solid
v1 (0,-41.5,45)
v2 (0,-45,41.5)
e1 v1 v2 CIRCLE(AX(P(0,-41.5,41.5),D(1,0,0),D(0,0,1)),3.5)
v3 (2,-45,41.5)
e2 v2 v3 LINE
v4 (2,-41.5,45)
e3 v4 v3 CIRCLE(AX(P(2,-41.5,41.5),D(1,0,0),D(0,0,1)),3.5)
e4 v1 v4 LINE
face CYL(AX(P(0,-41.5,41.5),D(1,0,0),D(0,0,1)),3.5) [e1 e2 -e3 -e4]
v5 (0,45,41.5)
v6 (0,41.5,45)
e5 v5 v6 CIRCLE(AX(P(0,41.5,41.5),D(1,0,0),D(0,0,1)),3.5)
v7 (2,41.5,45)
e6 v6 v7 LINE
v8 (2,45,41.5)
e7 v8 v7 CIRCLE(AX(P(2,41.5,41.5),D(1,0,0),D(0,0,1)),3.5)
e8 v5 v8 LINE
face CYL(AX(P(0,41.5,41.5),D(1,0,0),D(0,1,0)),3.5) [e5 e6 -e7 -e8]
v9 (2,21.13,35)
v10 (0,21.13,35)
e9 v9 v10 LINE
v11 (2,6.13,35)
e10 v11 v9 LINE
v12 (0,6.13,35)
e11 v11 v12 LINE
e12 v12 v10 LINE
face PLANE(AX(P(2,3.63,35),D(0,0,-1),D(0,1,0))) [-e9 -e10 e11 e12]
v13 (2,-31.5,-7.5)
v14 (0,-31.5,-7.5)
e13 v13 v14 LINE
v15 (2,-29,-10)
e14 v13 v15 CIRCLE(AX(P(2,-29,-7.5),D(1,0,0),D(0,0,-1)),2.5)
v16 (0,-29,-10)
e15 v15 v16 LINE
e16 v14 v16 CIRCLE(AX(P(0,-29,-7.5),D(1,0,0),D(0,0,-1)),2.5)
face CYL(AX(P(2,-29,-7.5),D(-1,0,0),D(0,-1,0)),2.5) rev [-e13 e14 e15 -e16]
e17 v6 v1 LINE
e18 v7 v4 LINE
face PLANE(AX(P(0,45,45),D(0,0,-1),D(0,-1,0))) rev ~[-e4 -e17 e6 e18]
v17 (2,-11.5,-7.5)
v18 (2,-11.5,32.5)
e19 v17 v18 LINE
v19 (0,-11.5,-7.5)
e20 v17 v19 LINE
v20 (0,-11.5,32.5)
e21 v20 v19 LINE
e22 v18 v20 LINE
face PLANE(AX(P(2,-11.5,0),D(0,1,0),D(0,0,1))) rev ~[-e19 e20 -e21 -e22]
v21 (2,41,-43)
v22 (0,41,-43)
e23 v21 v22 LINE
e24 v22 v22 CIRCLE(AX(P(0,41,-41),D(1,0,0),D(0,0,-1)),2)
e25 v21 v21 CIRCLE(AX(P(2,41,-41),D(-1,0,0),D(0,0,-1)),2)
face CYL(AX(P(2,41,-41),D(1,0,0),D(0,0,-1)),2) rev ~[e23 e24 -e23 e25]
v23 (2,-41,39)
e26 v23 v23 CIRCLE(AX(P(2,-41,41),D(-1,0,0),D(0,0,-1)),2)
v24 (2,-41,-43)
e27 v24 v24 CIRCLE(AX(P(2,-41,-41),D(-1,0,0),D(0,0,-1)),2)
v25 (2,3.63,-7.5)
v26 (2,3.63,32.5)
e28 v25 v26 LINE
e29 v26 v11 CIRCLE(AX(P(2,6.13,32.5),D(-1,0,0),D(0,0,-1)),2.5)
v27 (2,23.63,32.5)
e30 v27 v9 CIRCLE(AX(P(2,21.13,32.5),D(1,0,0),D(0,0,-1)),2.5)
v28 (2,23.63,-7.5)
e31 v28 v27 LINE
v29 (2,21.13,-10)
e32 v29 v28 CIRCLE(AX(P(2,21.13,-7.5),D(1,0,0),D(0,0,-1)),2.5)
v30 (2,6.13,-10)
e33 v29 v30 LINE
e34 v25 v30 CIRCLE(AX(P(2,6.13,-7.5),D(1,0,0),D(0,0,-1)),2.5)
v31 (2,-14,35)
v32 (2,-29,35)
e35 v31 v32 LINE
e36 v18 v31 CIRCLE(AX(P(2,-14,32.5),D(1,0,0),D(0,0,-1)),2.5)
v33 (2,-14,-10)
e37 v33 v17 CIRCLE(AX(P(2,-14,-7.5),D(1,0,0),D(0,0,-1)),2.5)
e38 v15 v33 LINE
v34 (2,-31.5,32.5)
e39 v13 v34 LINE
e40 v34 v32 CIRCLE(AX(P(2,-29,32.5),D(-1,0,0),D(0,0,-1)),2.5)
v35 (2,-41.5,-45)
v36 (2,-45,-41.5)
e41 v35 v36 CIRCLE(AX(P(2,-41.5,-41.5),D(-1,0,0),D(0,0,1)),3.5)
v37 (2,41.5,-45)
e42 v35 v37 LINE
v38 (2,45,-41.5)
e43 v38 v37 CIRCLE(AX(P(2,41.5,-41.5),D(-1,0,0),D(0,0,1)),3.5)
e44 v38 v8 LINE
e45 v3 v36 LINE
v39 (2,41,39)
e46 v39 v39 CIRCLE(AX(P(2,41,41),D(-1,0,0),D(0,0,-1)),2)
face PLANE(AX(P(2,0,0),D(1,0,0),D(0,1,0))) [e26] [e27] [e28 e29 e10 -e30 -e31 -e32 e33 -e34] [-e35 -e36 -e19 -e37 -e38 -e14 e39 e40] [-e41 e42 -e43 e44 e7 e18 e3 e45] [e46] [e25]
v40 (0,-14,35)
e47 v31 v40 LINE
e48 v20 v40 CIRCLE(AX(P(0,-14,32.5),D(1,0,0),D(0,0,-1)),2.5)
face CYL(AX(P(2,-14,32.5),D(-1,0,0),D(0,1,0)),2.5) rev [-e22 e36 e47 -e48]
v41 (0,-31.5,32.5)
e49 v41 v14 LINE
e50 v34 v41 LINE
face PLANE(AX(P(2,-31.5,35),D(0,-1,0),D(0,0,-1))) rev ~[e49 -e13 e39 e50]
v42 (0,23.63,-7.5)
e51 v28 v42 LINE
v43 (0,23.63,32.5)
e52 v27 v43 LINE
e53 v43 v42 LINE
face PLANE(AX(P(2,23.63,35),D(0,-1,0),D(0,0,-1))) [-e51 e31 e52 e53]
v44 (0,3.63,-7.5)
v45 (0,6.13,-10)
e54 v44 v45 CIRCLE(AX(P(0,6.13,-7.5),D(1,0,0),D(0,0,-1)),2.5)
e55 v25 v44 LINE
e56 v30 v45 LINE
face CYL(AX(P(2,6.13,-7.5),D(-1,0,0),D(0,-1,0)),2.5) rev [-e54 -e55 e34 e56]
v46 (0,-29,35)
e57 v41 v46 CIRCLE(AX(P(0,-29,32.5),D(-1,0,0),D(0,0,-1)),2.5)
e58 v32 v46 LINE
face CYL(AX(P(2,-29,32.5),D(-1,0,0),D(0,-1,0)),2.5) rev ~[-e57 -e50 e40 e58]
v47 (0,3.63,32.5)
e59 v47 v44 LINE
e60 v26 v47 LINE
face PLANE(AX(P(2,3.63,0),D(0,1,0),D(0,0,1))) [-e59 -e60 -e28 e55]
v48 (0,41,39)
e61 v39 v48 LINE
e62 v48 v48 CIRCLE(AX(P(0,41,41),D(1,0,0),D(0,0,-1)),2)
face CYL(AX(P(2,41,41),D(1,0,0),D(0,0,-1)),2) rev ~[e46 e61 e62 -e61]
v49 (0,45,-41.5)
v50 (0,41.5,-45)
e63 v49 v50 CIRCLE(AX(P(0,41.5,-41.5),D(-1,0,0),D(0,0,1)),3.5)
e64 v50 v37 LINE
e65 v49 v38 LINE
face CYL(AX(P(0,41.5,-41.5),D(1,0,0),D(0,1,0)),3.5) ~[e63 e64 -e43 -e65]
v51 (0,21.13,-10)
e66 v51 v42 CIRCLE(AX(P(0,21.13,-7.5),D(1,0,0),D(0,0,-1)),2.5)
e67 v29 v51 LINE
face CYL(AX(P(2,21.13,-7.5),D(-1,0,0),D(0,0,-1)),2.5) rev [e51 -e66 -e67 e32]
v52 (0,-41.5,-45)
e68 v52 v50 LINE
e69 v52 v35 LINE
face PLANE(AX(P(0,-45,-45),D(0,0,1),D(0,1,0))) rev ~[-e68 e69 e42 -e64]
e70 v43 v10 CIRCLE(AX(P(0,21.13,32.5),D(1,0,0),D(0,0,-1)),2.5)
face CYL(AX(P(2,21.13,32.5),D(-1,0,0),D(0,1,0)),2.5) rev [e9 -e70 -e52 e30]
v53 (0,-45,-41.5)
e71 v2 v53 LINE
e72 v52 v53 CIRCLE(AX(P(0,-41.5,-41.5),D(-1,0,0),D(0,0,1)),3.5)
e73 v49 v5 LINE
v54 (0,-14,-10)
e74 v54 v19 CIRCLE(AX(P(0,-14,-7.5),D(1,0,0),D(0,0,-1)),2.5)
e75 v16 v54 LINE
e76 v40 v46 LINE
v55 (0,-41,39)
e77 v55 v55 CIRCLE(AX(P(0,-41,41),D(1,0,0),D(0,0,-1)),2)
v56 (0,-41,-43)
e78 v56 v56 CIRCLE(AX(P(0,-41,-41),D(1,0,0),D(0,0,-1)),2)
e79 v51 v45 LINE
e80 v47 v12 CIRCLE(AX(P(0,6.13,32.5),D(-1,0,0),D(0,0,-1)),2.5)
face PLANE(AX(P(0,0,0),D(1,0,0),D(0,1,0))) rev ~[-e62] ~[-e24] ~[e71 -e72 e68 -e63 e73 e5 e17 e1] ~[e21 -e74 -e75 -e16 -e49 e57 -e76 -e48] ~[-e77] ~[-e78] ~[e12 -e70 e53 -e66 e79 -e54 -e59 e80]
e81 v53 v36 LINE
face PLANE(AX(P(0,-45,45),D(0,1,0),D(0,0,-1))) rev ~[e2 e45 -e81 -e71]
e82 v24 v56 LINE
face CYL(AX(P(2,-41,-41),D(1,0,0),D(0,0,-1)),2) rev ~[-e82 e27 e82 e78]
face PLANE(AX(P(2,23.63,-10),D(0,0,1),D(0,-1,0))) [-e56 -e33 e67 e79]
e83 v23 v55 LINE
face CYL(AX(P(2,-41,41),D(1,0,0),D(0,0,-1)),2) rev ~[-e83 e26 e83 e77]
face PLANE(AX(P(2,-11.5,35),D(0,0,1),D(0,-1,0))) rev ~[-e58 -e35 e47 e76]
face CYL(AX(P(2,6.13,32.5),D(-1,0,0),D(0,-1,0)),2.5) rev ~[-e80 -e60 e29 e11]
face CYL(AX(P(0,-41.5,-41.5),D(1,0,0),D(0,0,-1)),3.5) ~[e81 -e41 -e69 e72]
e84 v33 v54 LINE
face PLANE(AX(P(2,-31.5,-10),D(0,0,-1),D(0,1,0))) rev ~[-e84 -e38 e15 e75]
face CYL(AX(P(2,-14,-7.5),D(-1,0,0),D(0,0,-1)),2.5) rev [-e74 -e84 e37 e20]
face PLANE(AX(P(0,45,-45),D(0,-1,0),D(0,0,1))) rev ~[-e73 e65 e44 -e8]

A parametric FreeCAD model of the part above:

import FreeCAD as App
import Part
import Sketcher

V = App.Vector
Q = App.Units.Quantity


def edges_at(feature, points):
    """Names of the edges that pass closest to the given points."""
    edges = feature.Shape.Edges
    near = lambda p: min(range(len(edges)), key=lambda i: edges[i].distToShape(Part.Vertex(*p))[0])
    return sorted({f"Edge{near(p) + 1}" for p in points})


def add_polygon(sketch, points):
    """Adds a closed chain of lines whose ends are joined by coincident constraints."""
    first, n = sketch.GeometryCount, len(points)
    for a, b in zip(points, points[1:] + points[:1]):
        sketch.addGeometry(Part.LineSegment(App.Vector(*a, 0), App.Vector(*b, 0)), False)
    for i in range(n):
        sketch.addConstraint(Sketcher.Constraint("Coincident", first + i, 2, first + (i + 1) % n, 1))

doc = App.newDocument("Part")
body = doc.addObject("PartDesign::Body", "Body")

# Sketch on YZ plane
sketch1 = body.newObject("Sketcher::SketchObject", "Sketch")
sketch1.AttachmentSupport = (doc.getObject("YZ_Plane"), [""])
sketch1.MapMode = "FlatFace"
add_polygon(sketch1, [(45, -45), (45, 45), (-45, 45), (-45, -45)])  # lines 0-3
sketch1.addConstraint(Sketcher.Constraint("Vertical", 0))
sketch1.addConstraint(Sketcher.Constraint("Horizontal", 1))
sketch1.addConstraint(Sketcher.Constraint("Vertical", 2))
sketch1.addConstraint(Sketcher.Constraint("Horizontal", 3))
sketch1.addConstraint(Sketcher.Constraint("Symmetric", 0, 2, 2, 2, -1, 1))
sketch1.addConstraint(Sketcher.Constraint("Equal", 3, 0))
sketch1.addConstraint(Sketcher.Constraint("DistanceX", 1, 2, 1, 1, Q("90 mm")))
pad1 = body.newObject("PartDesign::Pad", "Pad")
pad1.Profile = sketch1
pad1.Length = 2

# Sketch on YZ plane
sketch2 = body.newObject("Sketcher::SketchObject", "Sketch001")
sketch2.AttachmentSupport = (doc.getObject("YZ_Plane"), [""])
sketch2.MapMode = "FlatFace"
sketch2.AttachmentOffset = App.Placement(V(0, 0, 2), App.Rotation())
sketch2.addGeometry(Part.Circle(V(41, -41, 0), V(0, 0, 1), 2), False)
sketch2.addGeometry(Part.Circle(V(41, 41, 0), V(0, 0, 1), 2), False)
sketch2.addGeometry(Part.Circle(V(-41, 41, 0), V(0, 0, 1), 2), False)
sketch2.addGeometry(Part.Circle(V(-41, -41, 0), V(0, 0, 1), 2), False)
sketch2.addConstraint(Sketcher.Constraint("Equal", 0, 1))
sketch2.addConstraint(Sketcher.Constraint("Equal", 1, 2))
sketch2.addConstraint(Sketcher.Constraint("Equal", 2, 3))
sketch2.addConstraint(Sketcher.Constraint("Symmetric", 0, 3, 2, 3, -1, 1))
sketch2.addConstraint(Sketcher.Constraint("Symmetric", 1, 3, 3, 3, -1, 1))
sketch2.addConstraint(Sketcher.Constraint("Symmetric", 1, 3, 2, 3, -2))
sketch2.addConstraint(Sketcher.Constraint("Diameter", 0, Q("4 mm")))
sketch2.addConstraint(Sketcher.Constraint("DistanceX", -1, 1, 0, 3, Q("41 mm")))
sketch2.addConstraint(Sketcher.Constraint("DistanceY", 0, 3, -1, 1, Q("41 mm")))
pocket1 = body.newObject("PartDesign::Pocket", "Pocket")
pocket1.Profile = sketch2
pocket1.Length = 2
doc.recompute()

fillet = body.newObject("PartDesign::Fillet", "Fillet")
fillet.Base = (pocket1, edges_at(pocket1, [
    (1, 45, -45),
    (1, -45, -45),
    (1, -45, 45),
    (1, 45, 45),
]))
fillet.Radius = 3.5

# Sketch on YZ plane
sketch3 = body.newObject("Sketcher::SketchObject", "Sketch002")
sketch3.AttachmentSupport = (doc.getObject("YZ_Plane"), [""])
sketch3.MapMode = "FlatFace"
sketch3.AttachmentOffset = App.Placement(V(0, 0, 2), App.Rotation())
add_polygon(sketch3, [(-32, 35), (-32, -10), (-12, -10), (-12, 35)])  # lines 0-3
add_polygon(sketch3, [(4, 35), (4, -10), (24, -10), (24, 35)])  # lines 4-7
sketch3.addConstraint(Sketcher.Constraint("Vertical", 0))
sketch3.addConstraint(Sketcher.Constraint("Horizontal", 1))
sketch3.addConstraint(Sketcher.Constraint("Vertical", 2))
sketch3.addConstraint(Sketcher.Constraint("Horizontal", 3))
sketch3.addConstraint(Sketcher.Constraint("Vertical", 4))
sketch3.addConstraint(Sketcher.Constraint("Horizontal", 5))
sketch3.addConstraint(Sketcher.Constraint("Vertical", 6))
sketch3.addConstraint(Sketcher.Constraint("Horizontal", 7))
sketch3.addConstraint(Sketcher.Constraint("Horizontal", 1, 2, 4, 2))
sketch3.addConstraint(Sketcher.Constraint("Horizontal", 3, 2, 6, 2))
sketch3.addConstraint(Sketcher.Constraint("Equal", 3, 5))
sketch3.addConstraint(Sketcher.Constraint("DistanceX", 1, 1, 1, 2, Q("20 mm")))
sketch3.addConstraint(Sketcher.Constraint("DistanceY", 0, 2, 0, 1, Q("45 mm")))
sketch3.addConstraint(Sketcher.Constraint("DistanceY", 0, 2, -1, 1, Q("10 mm")))
sketch3.addConstraint(Sketcher.Constraint("DistanceX", 0, 2, -1, 1, Q("31.5 mm")))
sketch3.addConstraint(Sketcher.Constraint("DistanceX", -1, 1, 4, 2, Q("3.63 mm")))
pocket2 = body.newObject("PartDesign::Pocket", "Pocket001")
pocket2.Profile = sketch3
pocket2.Length = 2
doc.recompute()

fillet2 = body.newObject("PartDesign::Fillet", "Fillet001")
fillet2.Base = (pocket2, edges_at(pocket2, [
    (1, 23.63, -10),
    (1, -11.5, -10),
    (1, 23.63, 35),
    (1, -11.5, 35),
    (1, 3.63, -10),
    (1, -31.5, -10),
    (1, 3.63, 35),
    (1, -31.5, 35),
]))
fillet2.Radius = 2.5

doc.recompute()
